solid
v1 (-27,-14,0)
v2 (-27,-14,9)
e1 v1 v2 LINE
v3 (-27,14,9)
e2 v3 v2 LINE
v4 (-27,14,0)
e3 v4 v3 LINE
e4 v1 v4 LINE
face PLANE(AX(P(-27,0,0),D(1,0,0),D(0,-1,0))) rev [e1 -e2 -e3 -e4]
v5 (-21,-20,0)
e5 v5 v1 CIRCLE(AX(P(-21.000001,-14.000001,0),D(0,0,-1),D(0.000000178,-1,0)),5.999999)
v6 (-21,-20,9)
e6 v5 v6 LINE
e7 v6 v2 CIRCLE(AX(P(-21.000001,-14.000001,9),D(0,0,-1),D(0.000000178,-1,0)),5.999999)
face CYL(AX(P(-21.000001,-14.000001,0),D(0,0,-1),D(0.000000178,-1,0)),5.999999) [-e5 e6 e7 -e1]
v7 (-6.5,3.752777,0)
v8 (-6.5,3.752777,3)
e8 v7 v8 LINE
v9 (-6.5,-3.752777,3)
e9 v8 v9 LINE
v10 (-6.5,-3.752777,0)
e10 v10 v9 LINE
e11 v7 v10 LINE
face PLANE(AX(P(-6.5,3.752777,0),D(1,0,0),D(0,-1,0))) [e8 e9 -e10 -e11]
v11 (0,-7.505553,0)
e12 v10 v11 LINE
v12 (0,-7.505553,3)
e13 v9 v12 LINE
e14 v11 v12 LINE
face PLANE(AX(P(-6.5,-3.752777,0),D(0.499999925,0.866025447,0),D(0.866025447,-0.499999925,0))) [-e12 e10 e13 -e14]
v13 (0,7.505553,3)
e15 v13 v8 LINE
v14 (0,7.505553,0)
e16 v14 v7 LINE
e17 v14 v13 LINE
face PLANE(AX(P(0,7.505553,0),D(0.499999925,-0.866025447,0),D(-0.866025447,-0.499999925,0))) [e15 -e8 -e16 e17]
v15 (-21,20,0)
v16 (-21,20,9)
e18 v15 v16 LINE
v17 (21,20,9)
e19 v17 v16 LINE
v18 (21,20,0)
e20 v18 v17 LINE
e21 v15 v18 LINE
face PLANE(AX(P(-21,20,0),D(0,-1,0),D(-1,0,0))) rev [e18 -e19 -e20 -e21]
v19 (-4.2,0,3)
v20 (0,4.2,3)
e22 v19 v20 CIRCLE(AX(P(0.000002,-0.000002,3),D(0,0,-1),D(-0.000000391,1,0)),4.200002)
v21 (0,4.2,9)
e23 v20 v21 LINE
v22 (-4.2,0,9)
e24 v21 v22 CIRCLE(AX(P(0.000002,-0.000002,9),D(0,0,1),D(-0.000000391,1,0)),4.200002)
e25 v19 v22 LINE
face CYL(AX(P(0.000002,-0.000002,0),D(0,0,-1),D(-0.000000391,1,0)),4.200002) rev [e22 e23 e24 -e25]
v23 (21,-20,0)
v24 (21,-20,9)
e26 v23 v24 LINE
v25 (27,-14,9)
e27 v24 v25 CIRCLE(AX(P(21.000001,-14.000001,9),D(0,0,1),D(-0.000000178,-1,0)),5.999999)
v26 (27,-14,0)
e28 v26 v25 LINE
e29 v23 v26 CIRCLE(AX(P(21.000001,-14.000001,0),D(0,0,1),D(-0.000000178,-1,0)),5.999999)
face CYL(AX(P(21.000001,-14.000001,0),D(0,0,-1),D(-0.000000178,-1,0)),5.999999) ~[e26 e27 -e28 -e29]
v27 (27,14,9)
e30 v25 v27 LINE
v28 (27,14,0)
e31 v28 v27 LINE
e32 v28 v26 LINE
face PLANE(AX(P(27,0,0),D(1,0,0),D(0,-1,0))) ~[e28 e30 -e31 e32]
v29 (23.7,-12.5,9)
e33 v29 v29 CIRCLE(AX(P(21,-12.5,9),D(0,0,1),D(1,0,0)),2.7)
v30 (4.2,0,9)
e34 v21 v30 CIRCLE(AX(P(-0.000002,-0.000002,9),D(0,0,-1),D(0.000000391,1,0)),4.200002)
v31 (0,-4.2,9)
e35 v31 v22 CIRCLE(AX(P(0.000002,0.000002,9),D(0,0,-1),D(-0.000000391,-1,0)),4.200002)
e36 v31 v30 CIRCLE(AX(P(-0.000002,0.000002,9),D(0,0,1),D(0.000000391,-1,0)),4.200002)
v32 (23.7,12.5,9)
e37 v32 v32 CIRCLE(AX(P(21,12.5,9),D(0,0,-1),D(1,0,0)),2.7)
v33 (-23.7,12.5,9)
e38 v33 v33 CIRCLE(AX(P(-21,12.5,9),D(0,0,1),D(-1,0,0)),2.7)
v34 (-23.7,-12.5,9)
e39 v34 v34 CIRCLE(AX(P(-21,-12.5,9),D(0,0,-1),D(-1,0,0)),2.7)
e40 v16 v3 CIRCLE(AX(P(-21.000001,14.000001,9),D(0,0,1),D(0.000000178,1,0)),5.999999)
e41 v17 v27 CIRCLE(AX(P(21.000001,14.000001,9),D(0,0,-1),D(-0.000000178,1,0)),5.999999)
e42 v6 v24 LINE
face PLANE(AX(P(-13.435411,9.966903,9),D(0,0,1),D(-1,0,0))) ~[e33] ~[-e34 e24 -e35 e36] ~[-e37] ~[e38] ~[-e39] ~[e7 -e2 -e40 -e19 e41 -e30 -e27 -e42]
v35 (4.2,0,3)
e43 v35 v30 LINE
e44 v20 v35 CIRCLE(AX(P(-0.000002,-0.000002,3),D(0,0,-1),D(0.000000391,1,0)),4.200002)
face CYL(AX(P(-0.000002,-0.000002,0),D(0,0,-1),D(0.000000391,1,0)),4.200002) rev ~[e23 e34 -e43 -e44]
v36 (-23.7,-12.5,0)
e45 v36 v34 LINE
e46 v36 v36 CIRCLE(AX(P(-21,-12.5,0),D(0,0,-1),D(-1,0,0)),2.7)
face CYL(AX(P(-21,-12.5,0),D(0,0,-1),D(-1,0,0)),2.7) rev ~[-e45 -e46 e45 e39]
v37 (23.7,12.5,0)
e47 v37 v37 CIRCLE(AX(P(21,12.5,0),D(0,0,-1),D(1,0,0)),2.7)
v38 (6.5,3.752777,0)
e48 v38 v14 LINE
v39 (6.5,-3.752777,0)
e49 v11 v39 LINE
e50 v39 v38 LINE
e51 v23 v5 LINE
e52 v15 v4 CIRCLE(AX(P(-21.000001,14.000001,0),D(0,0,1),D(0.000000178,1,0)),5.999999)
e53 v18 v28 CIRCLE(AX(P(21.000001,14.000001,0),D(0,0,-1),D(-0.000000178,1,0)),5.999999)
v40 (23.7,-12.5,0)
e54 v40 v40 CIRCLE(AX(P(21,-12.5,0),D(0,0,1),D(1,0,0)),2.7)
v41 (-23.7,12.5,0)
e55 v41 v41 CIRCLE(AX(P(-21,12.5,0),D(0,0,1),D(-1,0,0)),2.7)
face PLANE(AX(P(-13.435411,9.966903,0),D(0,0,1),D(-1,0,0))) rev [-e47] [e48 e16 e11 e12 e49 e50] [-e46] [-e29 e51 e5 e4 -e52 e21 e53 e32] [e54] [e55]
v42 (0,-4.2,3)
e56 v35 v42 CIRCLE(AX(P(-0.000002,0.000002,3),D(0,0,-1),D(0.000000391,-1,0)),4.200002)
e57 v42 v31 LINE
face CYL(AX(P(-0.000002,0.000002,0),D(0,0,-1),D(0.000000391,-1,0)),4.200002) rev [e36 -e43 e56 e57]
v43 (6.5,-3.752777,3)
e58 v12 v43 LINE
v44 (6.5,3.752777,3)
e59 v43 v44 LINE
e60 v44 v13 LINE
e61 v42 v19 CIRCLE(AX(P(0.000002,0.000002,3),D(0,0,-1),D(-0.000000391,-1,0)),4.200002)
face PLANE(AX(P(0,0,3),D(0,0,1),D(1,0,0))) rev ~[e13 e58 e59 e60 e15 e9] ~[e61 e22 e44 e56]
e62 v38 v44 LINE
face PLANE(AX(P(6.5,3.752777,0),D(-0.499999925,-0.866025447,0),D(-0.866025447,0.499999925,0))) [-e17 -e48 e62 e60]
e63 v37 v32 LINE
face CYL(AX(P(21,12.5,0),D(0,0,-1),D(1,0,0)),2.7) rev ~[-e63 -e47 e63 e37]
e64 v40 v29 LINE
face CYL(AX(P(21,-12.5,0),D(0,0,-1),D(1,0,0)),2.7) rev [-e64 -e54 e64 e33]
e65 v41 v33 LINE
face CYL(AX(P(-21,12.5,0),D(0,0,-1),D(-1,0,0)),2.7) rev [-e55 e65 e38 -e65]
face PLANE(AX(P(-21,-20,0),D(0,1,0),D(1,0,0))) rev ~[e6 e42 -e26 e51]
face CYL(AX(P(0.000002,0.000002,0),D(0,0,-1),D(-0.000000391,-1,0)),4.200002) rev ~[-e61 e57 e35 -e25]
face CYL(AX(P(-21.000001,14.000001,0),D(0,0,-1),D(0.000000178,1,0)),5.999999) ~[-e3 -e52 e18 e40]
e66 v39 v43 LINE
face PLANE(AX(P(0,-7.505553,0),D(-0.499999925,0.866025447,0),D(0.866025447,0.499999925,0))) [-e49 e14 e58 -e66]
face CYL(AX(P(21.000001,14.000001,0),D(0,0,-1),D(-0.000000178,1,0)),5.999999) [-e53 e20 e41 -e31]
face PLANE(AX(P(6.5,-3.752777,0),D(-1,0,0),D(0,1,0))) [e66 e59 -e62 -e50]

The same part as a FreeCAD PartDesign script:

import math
import FreeCAD as App
import Part
import Sketcher

V = App.Vector
Q = App.Units.Quantity

doc = App.newDocument("Part")
params = doc.addObject("Spreadsheet::Sheet", "Params")
for row, (alias, value) in enumerate([
    ("sketch1_radius", "5.999999 mm"),
    ("sketch1_diameter", "5.4 mm"),
    ("sketch1_radius2", "4.200002 mm"),
    ("sketch1_width", "21 mm"),
    ("sketch1_height", "14 mm"),
    ("pad1_length", "9 mm"),
    ("sketch2_radius", "5.999999 mm"),
    ("sketch2_diameter", "5.4 mm"),
    ("sketch2_radius2", "4.200002 mm"),
    ("sketch2_width", "21 mm"),
    ("sketch2_height", "14 mm"),
    ("pad2_length", "9 mm"),
    ("pocket1_length", "3 mm"),
], start=1):
    params.set(f"A{row}", alias)
    params.set(f"B{row}", "=" + value)
    params.setAlias(f"B{row}", alias)

body = doc.addObject("PartDesign::Body", "Body")

# Sketch on XY plane
sketch1 = body.newObject("Sketcher::SketchObject", "Sketch")
sketch1.AttachmentSupport = (doc.getObject("XY_Plane"), [""])
sketch1.MapMode = "FlatFace"
sketch1.addGeometry([
    Part.ArcOfCircle(Part.Circle(V(0, 0, 0), V(0, 0, 1), 4.2), math.radians(-90), math.radians(0)),  # 0
    Part.LineSegment(V(0, -4.2, 0), V(0, -20, 0)),  # 1
    Part.LineSegment(V(0, -20, 0), V(21, -20, 0)),  # 2
    Part.ArcOfCircle(Part.Circle(V(21, -14, 0), V(0, 0, 1), 6), math.radians(-90), math.radians(0)),  # 3
    Part.LineSegment(V(27, -14, 0), V(27, 0, 0)),  # 4
    Part.LineSegment(V(27, 0, 0), V(4.2, 0, 0)),  # 5
    Part.Circle(V(21, -12.5, 0), V(0, 0, 1), 2.7),  # 6
], False)
sketch1.addConstraint([
    Sketcher.Constraint("Coincident", 0, 1, 1, 1),
    Sketcher.Constraint("Coincident", 1, 2, 2, 1),
    Sketcher.Constraint("Tangent", 2, 2, 3, 1),
    Sketcher.Constraint("Tangent", 3, 2, 4, 1),
    Sketcher.Constraint("Coincident", 4, 2, 5, 1),
    Sketcher.Constraint("Coincident", 5, 2, 0, 2),
    Sketcher.Constraint("Vertical", 1),
    Sketcher.Constraint("Horizontal", 2),
    Sketcher.Constraint("Vertical", 4),
    Sketcher.Constraint("Horizontal", 5),
    Sketcher.Constraint("Coincident", 0, 3, -1, 1),
    Sketcher.Constraint("PointOnObject", 0, 1, -2),
    Sketcher.Constraint("PointOnObject", 4, 2, -1),
    Sketcher.Constraint("Vertical", 3, 3, 6, 3),
    Sketcher.Constraint("Radius", 3, Q("5.999999 mm")),
    Sketcher.Constraint("Diameter", 6, Q("5.4 mm")),
    Sketcher.Constraint("Radius", 0, Q("4.200002 mm")),
    Sketcher.Constraint("DistanceX", 2, 1, 2, 2, Q("21 mm")),
    Sketcher.Constraint("DistanceY", 4, 1, 4, 2, Q("14 mm")),
    Sketcher.Constraint("DistanceY", 6, 3, -1, 1, Q("12.5 mm")),
])
sketch1.setExpression("Constraints[14]", "Params.sketch1_radius")
sketch1.setExpression("Constraints[15]", "Params.sketch1_diameter")
sketch1.setExpression("Constraints[16]", "Params.sketch1_radius2")
sketch1.setExpression("Constraints[17]", "Params.sketch1_width")
sketch1.setExpression("Constraints[18]", "Params.sketch1_height")
pad1 = body.newObject("PartDesign::Pad", "Pad")
pad1.Profile = sketch1
pad1.setExpression("Length", "Params.pad1_length")

# Sketch on XY plane
sketch2 = body.newObject("Sketcher::SketchObject", "Sketch001")
sketch2.AttachmentSupport = (doc.getObject("XY_Plane"), [""])
sketch2.MapMode = "FlatFace"
sketch2.addGeometry([
    Part.ArcOfCircle(Part.Circle(V(0, 0, 0), V(0, 0, 1), 4.2), math.radians(-180), math.radians(-90)),  # 0
    Part.LineSegment(V(0, -4.2, 0), V(0, -20, 0)),  # 1
    Part.LineSegment(V(0, -20, 0), V(-21, -20, 0)),  # 2
    Part.ArcOfCircle(Part.Circle(V(-21, -14, 0), V(0, 0, 1), 6), math.radians(180), math.radians(270)),  # 3
    Part.LineSegment(V(-27, -14, 0), V(-27, 0, 0)),  # 4
    Part.LineSegment(V(-27, 0, 0), V(-4.2, 0, 0)),  # 5
    Part.Circle(V(-21, -12.5, 0), V(0, 0, 1), 2.7),  # 6
], False)
sketch2.addConstraint([
    Sketcher.Constraint("Coincident", 0, 2, 1, 1),
    Sketcher.Constraint("Coincident", 1, 2, 2, 1),
    Sketcher.Constraint("Tangent", 2, 2, 3, 2),
    Sketcher.Constraint("Tangent", 3, 1, 4, 1),
    Sketcher.Constraint("Coincident", 4, 2, 5, 1),
    Sketcher.Constraint("Coincident", 5, 2, 0, 1),
    Sketcher.Constraint("Vertical", 1),
    Sketcher.Constraint("Horizontal", 2),
    Sketcher.Constraint("Vertical", 4),
    Sketcher.Constraint("Horizontal", 5),
    Sketcher.Constraint("Coincident", 0, 3, -1, 1),
    Sketcher.Constraint("PointOnObject", 0, 2, -2),
    Sketcher.Constraint("PointOnObject", 4, 2, -1),
    Sketcher.Constraint("Vertical", 3, 3, 6, 3),
    Sketcher.Constraint("Radius", 3, Q("5.999999 mm")),
    Sketcher.Constraint("Diameter", 6, Q("5.4 mm")),
    Sketcher.Constraint("Radius", 0, Q("4.200002 mm")),
    Sketcher.Constraint("DistanceX", 2, 2, 2, 1, Q("21 mm")),
    Sketcher.Constraint("DistanceY", 4, 1, 4, 2, Q("14 mm")),
    Sketcher.Constraint("DistanceY", 6, 3, -1, 1, Q("12.5 mm")),
])
sketch2.setExpression("Constraints[14]", "Params.sketch2_radius")
sketch2.setExpression("Constraints[15]", "Params.sketch2_diameter")
sketch2.setExpression("Constraints[16]", "Params.sketch2_radius2")
sketch2.setExpression("Constraints[17]", "Params.sketch2_width")
sketch2.setExpression("Constraints[18]", "Params.sketch2_height")
pad2 = body.newObject("PartDesign::Pad", "Pad001")
pad2.Profile = sketch2
pad2.setExpression("Length", "Params.pad2_length")
doc.recompute()

mirrored = body.newObject("PartDesign::Mirrored", "Mirrored")
mirrored.Originals = [pad1, pad2]
mirrored.MirrorPlane = (doc.getObject("XZ_Plane"), [""])
body.Tip = mirrored

# Sketch on XY plane
sketch3 = body.newObject("Sketcher::SketchObject", "Sketch002")
sketch3.AttachmentSupport = (doc.getObject("XY_Plane"), [""])
sketch3.MapMode = "FlatFace"
sketch3.addGeometry([
    Part.LineSegment(V(6, 4, 0), V(0, 8, 0)),  # 0
    Part.LineSegment(V(0, 8, 0), V(-6, 4, 0)),  # 1
    Part.LineSegment(V(-6, 4, 0), V(-6, -4, 0)),  # 2
    Part.LineSegment(V(-6, -4, 0), V(0, -8, 0)),  # 3
    Part.LineSegment(V(0, -8, 0), V(6, -4, 0)),  # 4
    Part.LineSegment(V(6, -4, 0), V(6, 4, 0)),  # 5
], False)
sketch3.addConstraint([
    Sketcher.Constraint("Coincident", 0, 2, 1, 1),
    Sketcher.Constraint("Coincident", 1, 2, 2, 1),
    Sketcher.Constraint("Coincident", 2, 2, 3, 1),
    Sketcher.Constraint("Coincident", 3, 2, 4, 1),
    Sketcher.Constraint("Coincident", 4, 2, 5, 1),
    Sketcher.Constraint("Coincident", 5, 2, 0, 1),
    Sketcher.Constraint("Vertical", 2),
    Sketcher.Constraint("Vertical", 5),
    Sketcher.Constraint("Symmetric", 0, 2, 3, 2, -1, 1),
    Sketcher.Constraint("Symmetric", 1, 2, 4, 2, -1, 1),
    Sketcher.Constraint("PointOnObject", 0, 2, -2),
    Sketcher.Constraint("Parallel", 0, 3),
    Sketcher.Constraint("Horizontal", 2, 2, 4, 2),
    Sketcher.Constraint("Angle", 0, Q("150.000005 deg")),
    Sketcher.Constraint("DistanceX", 2, 2, 4, 2, Q("13 mm")),
    Sketcher.Constraint("DistanceY", 2, 2, 2, 1, Q("7.505554 mm")),
])
pocket1 = body.newObject("PartDesign::Pocket", "Pocket")
pocket1.Profile = sketch3
pocket1.setExpression("Length", "Params.pocket1_length")
pocket1.Reversed = True

doc.recompute()
